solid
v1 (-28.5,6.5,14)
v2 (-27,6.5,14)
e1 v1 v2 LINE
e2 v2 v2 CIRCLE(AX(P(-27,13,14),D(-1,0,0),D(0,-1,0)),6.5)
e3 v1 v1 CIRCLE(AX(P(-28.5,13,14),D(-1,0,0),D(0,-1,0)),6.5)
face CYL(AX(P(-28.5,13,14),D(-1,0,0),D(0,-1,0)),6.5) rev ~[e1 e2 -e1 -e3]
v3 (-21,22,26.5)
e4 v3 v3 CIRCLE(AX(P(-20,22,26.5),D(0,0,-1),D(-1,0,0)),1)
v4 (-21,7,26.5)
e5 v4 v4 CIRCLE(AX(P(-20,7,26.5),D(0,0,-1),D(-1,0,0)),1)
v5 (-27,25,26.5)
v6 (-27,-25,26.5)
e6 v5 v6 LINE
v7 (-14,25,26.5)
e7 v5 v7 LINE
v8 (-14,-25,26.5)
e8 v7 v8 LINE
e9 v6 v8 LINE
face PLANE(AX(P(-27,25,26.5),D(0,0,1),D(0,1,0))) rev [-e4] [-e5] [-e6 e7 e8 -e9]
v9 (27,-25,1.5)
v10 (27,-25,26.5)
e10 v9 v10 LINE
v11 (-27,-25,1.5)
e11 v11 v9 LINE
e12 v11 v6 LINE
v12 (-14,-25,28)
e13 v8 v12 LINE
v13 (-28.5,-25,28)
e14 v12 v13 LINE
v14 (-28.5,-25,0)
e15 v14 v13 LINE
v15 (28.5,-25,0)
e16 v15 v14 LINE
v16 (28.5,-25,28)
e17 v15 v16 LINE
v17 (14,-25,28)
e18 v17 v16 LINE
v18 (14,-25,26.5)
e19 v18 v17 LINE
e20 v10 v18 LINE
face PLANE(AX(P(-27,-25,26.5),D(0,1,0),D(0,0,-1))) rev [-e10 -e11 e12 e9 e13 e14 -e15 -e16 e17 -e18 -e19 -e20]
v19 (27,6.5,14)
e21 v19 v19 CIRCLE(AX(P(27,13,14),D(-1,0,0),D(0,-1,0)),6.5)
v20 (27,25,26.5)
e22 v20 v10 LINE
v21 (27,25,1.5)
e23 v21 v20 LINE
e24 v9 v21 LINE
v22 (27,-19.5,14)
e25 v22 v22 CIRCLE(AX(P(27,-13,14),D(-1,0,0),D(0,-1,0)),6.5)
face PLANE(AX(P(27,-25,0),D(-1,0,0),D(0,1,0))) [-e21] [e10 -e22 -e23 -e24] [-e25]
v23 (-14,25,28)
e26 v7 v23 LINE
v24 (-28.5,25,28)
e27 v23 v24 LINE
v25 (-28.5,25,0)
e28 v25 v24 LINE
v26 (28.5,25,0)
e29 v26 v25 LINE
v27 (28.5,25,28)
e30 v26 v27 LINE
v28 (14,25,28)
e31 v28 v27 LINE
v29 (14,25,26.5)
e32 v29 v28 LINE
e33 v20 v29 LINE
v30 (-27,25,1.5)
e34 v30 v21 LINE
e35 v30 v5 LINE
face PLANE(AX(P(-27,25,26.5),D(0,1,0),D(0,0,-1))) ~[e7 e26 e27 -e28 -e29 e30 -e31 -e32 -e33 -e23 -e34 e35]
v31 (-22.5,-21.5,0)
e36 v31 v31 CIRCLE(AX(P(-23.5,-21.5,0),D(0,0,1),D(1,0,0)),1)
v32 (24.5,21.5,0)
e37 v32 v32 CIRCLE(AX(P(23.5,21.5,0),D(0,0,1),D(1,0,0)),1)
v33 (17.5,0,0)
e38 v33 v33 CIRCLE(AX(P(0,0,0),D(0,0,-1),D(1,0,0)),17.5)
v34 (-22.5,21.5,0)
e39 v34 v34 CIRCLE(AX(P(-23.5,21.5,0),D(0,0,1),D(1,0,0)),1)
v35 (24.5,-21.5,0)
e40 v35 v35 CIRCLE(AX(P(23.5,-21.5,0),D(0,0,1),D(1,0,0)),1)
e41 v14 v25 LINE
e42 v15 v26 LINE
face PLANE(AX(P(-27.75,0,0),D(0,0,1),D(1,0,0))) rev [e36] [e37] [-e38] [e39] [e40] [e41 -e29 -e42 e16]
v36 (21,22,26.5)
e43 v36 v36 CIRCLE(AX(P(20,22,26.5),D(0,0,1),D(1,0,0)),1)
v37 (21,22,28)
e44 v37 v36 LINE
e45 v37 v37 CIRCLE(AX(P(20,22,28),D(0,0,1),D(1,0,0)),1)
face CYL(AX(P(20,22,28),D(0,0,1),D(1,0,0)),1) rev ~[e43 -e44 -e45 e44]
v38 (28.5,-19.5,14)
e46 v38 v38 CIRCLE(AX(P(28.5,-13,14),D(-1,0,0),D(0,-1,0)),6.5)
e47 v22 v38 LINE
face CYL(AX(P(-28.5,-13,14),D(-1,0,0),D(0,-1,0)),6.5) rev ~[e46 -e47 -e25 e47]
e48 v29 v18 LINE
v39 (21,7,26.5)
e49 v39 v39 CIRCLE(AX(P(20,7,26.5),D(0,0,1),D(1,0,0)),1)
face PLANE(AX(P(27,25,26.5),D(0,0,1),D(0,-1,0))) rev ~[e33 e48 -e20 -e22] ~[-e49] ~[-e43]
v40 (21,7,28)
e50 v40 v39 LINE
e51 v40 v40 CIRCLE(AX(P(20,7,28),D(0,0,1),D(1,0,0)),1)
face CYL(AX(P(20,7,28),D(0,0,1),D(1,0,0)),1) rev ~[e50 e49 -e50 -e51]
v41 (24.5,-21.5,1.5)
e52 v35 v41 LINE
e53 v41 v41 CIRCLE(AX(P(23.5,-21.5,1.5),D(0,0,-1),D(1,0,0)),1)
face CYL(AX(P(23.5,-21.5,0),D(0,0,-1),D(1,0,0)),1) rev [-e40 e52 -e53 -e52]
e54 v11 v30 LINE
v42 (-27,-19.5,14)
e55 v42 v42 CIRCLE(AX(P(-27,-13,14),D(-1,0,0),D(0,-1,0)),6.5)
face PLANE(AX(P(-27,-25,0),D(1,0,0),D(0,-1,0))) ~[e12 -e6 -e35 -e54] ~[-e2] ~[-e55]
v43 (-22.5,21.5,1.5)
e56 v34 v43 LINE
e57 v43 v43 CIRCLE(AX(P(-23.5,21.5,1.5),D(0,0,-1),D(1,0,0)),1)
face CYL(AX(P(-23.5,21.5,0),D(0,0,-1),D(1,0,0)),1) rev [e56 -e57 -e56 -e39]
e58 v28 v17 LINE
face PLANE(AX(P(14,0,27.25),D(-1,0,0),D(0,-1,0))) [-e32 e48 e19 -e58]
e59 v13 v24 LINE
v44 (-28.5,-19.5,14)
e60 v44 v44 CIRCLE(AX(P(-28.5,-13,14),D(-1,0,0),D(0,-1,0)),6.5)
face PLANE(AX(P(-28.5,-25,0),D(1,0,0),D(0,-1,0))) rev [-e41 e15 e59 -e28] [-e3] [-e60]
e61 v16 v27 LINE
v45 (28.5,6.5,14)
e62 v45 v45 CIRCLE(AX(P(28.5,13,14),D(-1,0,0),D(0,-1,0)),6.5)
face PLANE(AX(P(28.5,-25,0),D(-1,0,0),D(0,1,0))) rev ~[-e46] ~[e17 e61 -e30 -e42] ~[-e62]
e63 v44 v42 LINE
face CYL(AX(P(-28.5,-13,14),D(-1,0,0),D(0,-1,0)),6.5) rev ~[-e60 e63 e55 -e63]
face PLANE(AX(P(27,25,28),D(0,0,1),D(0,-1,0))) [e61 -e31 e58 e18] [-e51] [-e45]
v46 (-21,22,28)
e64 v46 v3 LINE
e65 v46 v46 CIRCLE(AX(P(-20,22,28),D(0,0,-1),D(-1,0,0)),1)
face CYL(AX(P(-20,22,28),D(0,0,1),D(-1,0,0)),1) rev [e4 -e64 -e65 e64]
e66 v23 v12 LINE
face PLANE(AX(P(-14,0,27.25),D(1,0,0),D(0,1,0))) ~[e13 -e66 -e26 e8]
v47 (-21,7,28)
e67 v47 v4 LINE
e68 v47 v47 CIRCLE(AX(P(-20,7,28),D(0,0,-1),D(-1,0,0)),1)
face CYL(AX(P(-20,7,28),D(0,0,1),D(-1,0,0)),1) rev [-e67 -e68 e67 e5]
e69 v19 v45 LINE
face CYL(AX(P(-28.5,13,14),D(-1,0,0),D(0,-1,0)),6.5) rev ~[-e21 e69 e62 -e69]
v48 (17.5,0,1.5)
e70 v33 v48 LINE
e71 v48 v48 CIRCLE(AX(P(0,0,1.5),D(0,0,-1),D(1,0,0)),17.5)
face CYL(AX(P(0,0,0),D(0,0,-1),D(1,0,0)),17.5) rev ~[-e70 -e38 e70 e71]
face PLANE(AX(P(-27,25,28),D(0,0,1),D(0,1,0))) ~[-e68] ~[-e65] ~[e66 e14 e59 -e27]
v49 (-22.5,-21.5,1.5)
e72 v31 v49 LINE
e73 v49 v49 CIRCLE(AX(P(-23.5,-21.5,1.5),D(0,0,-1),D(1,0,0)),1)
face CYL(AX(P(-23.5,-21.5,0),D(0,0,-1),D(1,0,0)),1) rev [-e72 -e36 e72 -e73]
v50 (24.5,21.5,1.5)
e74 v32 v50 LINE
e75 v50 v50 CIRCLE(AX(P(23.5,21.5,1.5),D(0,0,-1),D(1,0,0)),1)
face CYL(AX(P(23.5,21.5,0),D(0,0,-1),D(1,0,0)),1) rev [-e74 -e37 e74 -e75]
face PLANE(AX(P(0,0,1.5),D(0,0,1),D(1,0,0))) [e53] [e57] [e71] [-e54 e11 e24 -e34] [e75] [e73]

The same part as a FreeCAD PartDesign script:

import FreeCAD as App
import Part
import Sketcher

V = App.Vector
Q = App.Units.Quantity

doc = App.newDocument("Part")
body = doc.addObject("PartDesign::Body", "Body")

sketch1 = body.newObject("Sketcher::SketchObject", "Sketch")
sketch1.AttachmentSupport = (doc.getObject("XY_Plane"), [""])
sketch1.MapMode = "FlatFace"
sketch1.addGeometry([
    Part.LineSegment(V(-27, 25, 0), V(-27, -25, 0)),
    Part.LineSegment(V(-27, -25, 0), V(27, -25, 0)),
    Part.LineSegment(V(27, -25, 0), V(27, 25, 0)),
    Part.LineSegment(V(27, 25, 0), V(-27, 25, 0)),
    Part.Circle(V(-23.5, -21.5, 0), V(0, 0, 1), 1),
    Part.Circle(V(23.5, -21.5, 0), V(0, 0, 1), 1),
    Part.Circle(V(-23.5, 21.5, 0), V(0, 0, 1), 1),
    Part.Circle(V(23.5, 21.5, 0), V(0, 0, 1), 1),
], False)
sketch1.addConstraint([
    Sketcher.Constraint("Coincident", 0, 2, 1, 1),
    Sketcher.Constraint("Coincident", 1, 2, 2, 1),
    Sketcher.Constraint("Coincident", 2, 2, 3, 1),
    Sketcher.Constraint("Coincident", 3, 2, 0, 1),
    Sketcher.Constraint("Vertical", 0),
    Sketcher.Constraint("Horizontal", 1),
    Sketcher.Constraint("Vertical", 2),
    Sketcher.Constraint("Horizontal", 3),
    Sketcher.Constraint("Equal", 4, 5),
    Sketcher.Constraint("Equal", 5, 6),
    Sketcher.Constraint("Equal", 6, 7),
    Sketcher.Constraint("Symmetric", 5, 3, 6, 3, -1, 1),
    Sketcher.Constraint("Symmetric", 4, 3, 7, 3, -1, 1),
    Sketcher.Constraint("Symmetric", 0, 2, 2, 2, -1, 1),
    Sketcher.Constraint("Symmetric", 4, 3, 5, 3, -2),
    Sketcher.Constraint("Diameter", 4, Q("2 mm")),
    Sketcher.Constraint("DistanceX", 1, 1, 1, 2, Q("54 mm")),
    Sketcher.Constraint("DistanceY", 0, 2, 0, 1, Q("50 mm")),
    Sketcher.Constraint("DistanceX", 4, 3, 5, 3, Q("47 mm")),
    Sketcher.Constraint("DistanceY", 4, 3, 6, 3, Q("43 mm")),
])
pad1 = body.newObject("PartDesign::Pad", "Pad")
pad1.Profile = sketch1
pad1.Length = 1.5

sketch2 = body.newObject("Sketcher::SketchObject", "Sketch001")
sketch2.AttachmentSupport = (doc.getObject("XY_Plane"), [""])
sketch2.MapMode = "FlatFace"
sketch2.addGeometry([
    Part.LineSegment(V(27, 25, 0), V(27, -25, 0)),
    Part.LineSegment(V(27, -25, 0), V(28.5, -25, 0)),
    Part.LineSegment(V(28.5, -25, 0), V(28.5, 25, 0)),
    Part.LineSegment(V(28.5, 25, 0), V(27, 25, 0)),
], False)
sketch2.addConstraint([
    Sketcher.Constraint("Coincident", 0, 2, 1, 1),
    Sketcher.Constraint("Coincident", 1, 2, 2, 1),
    Sketcher.Constraint("Coincident", 2, 2, 3, 1),
    Sketcher.Constraint("Coincident", 3, 2, 0, 1),
    Sketcher.Constraint("Vertical", 0),
    Sketcher.Constraint("Horizontal", 1),
    Sketcher.Constraint("Vertical", 2),
    Sketcher.Constraint("Horizontal", 3),
    Sketcher.Constraint("DistanceY", 0, 2, 0, 1, Q("50 mm")),
    Sketcher.Constraint("DistanceX", 1, 1, 1, 2, Q("1.5 mm")),
    Sketcher.Constraint("DistanceX", -1, 1, 0, 2, Q("27 mm")),
    Sketcher.Constraint("DistanceY", 0, 2, -1, 1, Q("25 mm")),
])
pad2 = body.newObject("PartDesign::Pad", "Pad001")
pad2.Profile = sketch2
pad2.Length = 28

sketch3 = body.newObject("Sketcher::SketchObject", "Sketch002")
sketch3.AttachmentSupport = (doc.getObject("YZ_Plane"), [""])
sketch3.MapMode = "FlatFace"
sketch3.AttachmentOffset = App.Placement(V(0, 0, 27), App.Rotation())
sketch3.addGeometry([
    Part.LineSegment(V(25, 28, 0), V(25, 26.5, 0)),
    Part.LineSegment(V(25, 26.5, 0), V(-25, 26.5, 0)),
    Part.LineSegment(V(-25, 26.5, 0), V(-25, 28, 0)),
    Part.LineSegment(V(-25, 28, 0), V(25, 28, 0)),
], False)
sketch3.addConstraint([
    Sketcher.Constraint("Coincident", 0, 2, 1, 1),
    Sketcher.Constraint("Coincident", 1, 2, 2, 1),
    Sketcher.Constraint("Coincident", 2, 2, 3, 1),
    Sketcher.Constraint("Coincident", 3, 2, 0, 1),
    Sketcher.Constraint("Vertical", 0),
    Sketcher.Constraint("Horizontal", 1),
    Sketcher.Constraint("Vertical", 2),
    Sketcher.Constraint("Horizontal", 3),
    Sketcher.Constraint("DistanceX", 1, 2, 1, 1, Q("50 mm")),
    Sketcher.Constraint("DistanceY", 0, 2, 0, 1, Q("1.5 mm")),
    Sketcher.Constraint("DistanceX", -1, 1, 0, 2, Q("25 mm")),
    Sketcher.Constraint("DistanceY", -1, 1, 2, 2, Q("28 mm")),
])
pad3 = body.newObject("PartDesign::Pad", "Pad002")
pad3.Profile = sketch3
pad3.Length = 13
pad3.Reversed = True

sketch4 = body.newObject("Sketcher::SketchObject", "Sketch003")
sketch4.AttachmentSupport = (doc.getObject("XY_Plane"), [""])
sketch4.MapMode = "FlatFace"
sketch4.AttachmentOffset = App.Placement(V(0, 0, 28), App.Rotation())
sketch4.addGeometry([
    Part.Circle(V(20, 22, 0), V(0, 0, 1), 1),
    Part.Circle(V(20, 7, 0), V(0, 0, 1), 1),
], False)
sketch4.addConstraint([
    Sketcher.Constraint("Equal", 0, 1),
    Sketcher.Constraint("Vertical", 0, 3, 1, 3),
    Sketcher.Constraint("Diameter", 0, Q("2 mm")),
    Sketcher.Constraint("DistanceX", -1, 1, 0, 3, Q("20 mm")),
    Sketcher.Constraint("DistanceY", -1, 1, 0, 3, Q("22 mm")),
    Sketcher.Constraint("DistanceY", -1, 1, 1, 3, Q("7 mm")),
])
pocket1 = body.newObject("PartDesign::Pocket", "Pocket")
pocket1.Profile = sketch4
pocket1.Length = 1.5
body2 = doc.addObject("PartDesign::Body", "Body001")
doc.recompute()

body2.BaseFeature = body
doc.recompute()

mirroring = doc.addObject("Part::Mirroring", "Mirroring")
mirroring.Source = body
mirroring.Base = V(0, 0, 0)
mirroring.Normal = V(1, 0, 0)
body3 = doc.addObject("PartDesign::Body", "Body002")
body3.BaseFeature = mirroring
boolean = body2.newObject("PartDesign::Boolean", "Boolean")
boolean.Type = "Fuse"
boolean.addObjects([body3])
doc.recompute()

sketch5 = body2.newObject("Sketcher::SketchObject", "Sketch004")
sketch5.AttachmentSupport = (doc.getObject("YZ_Plane001"), [""])
sketch5.MapMode = "FlatFace"
sketch5.AttachmentOffset = App.Placement(V(0, 0, -28.5), App.Rotation())
sketch5.addGeometry([
    Part.Circle(V(13, 14, 0), V(0, 0, 1), 6),
    Part.Circle(V(-13, 14, 0), V(0, 0, 1), 6),
], False)
sketch5.addConstraint([
    Sketcher.Constraint("Equal", 0, 1),
    Sketcher.Constraint("Symmetric", 0, 3, 1, 3, -2),
    Sketcher.Constraint("Diameter", 0, Q("13 mm")),
    Sketcher.Constraint("DistanceX", -1, 1, 0, 3, Q("13 mm")),
    Sketcher.Constraint("DistanceY", -1, 1, 0, 3, Q("14 mm")),
])
pocket2 = body2.newObject("PartDesign::Pocket", "Pocket001")
pocket2.Profile = sketch5
pocket2.Type = "ThroughAll"
pocket2.Reversed = True

sketch6 = body2.newObject("Sketcher::SketchObject", "Sketch005")
sketch6.AttachmentSupport = (doc.getObject("XY_Plane001"), [""])
sketch6.MapMode = "FlatFace"
sketch6.addGeometry(Part.Circle(V(0, 0, 0), V(0, 0, 1), 18), False)
sketch6.addConstraint([
    Sketcher.Constraint("Coincident", 0, 3, -1, 1),
    Sketcher.Constraint("Diameter", 0, Q("35 mm")),
])
pocket3 = body2.newObject("PartDesign::Pocket", "Pocket002")
pocket3.Profile = sketch6
pocket3.Length = 1.5
pocket3.Reversed = True
mirroring.Visibility = False

doc.recompute()
